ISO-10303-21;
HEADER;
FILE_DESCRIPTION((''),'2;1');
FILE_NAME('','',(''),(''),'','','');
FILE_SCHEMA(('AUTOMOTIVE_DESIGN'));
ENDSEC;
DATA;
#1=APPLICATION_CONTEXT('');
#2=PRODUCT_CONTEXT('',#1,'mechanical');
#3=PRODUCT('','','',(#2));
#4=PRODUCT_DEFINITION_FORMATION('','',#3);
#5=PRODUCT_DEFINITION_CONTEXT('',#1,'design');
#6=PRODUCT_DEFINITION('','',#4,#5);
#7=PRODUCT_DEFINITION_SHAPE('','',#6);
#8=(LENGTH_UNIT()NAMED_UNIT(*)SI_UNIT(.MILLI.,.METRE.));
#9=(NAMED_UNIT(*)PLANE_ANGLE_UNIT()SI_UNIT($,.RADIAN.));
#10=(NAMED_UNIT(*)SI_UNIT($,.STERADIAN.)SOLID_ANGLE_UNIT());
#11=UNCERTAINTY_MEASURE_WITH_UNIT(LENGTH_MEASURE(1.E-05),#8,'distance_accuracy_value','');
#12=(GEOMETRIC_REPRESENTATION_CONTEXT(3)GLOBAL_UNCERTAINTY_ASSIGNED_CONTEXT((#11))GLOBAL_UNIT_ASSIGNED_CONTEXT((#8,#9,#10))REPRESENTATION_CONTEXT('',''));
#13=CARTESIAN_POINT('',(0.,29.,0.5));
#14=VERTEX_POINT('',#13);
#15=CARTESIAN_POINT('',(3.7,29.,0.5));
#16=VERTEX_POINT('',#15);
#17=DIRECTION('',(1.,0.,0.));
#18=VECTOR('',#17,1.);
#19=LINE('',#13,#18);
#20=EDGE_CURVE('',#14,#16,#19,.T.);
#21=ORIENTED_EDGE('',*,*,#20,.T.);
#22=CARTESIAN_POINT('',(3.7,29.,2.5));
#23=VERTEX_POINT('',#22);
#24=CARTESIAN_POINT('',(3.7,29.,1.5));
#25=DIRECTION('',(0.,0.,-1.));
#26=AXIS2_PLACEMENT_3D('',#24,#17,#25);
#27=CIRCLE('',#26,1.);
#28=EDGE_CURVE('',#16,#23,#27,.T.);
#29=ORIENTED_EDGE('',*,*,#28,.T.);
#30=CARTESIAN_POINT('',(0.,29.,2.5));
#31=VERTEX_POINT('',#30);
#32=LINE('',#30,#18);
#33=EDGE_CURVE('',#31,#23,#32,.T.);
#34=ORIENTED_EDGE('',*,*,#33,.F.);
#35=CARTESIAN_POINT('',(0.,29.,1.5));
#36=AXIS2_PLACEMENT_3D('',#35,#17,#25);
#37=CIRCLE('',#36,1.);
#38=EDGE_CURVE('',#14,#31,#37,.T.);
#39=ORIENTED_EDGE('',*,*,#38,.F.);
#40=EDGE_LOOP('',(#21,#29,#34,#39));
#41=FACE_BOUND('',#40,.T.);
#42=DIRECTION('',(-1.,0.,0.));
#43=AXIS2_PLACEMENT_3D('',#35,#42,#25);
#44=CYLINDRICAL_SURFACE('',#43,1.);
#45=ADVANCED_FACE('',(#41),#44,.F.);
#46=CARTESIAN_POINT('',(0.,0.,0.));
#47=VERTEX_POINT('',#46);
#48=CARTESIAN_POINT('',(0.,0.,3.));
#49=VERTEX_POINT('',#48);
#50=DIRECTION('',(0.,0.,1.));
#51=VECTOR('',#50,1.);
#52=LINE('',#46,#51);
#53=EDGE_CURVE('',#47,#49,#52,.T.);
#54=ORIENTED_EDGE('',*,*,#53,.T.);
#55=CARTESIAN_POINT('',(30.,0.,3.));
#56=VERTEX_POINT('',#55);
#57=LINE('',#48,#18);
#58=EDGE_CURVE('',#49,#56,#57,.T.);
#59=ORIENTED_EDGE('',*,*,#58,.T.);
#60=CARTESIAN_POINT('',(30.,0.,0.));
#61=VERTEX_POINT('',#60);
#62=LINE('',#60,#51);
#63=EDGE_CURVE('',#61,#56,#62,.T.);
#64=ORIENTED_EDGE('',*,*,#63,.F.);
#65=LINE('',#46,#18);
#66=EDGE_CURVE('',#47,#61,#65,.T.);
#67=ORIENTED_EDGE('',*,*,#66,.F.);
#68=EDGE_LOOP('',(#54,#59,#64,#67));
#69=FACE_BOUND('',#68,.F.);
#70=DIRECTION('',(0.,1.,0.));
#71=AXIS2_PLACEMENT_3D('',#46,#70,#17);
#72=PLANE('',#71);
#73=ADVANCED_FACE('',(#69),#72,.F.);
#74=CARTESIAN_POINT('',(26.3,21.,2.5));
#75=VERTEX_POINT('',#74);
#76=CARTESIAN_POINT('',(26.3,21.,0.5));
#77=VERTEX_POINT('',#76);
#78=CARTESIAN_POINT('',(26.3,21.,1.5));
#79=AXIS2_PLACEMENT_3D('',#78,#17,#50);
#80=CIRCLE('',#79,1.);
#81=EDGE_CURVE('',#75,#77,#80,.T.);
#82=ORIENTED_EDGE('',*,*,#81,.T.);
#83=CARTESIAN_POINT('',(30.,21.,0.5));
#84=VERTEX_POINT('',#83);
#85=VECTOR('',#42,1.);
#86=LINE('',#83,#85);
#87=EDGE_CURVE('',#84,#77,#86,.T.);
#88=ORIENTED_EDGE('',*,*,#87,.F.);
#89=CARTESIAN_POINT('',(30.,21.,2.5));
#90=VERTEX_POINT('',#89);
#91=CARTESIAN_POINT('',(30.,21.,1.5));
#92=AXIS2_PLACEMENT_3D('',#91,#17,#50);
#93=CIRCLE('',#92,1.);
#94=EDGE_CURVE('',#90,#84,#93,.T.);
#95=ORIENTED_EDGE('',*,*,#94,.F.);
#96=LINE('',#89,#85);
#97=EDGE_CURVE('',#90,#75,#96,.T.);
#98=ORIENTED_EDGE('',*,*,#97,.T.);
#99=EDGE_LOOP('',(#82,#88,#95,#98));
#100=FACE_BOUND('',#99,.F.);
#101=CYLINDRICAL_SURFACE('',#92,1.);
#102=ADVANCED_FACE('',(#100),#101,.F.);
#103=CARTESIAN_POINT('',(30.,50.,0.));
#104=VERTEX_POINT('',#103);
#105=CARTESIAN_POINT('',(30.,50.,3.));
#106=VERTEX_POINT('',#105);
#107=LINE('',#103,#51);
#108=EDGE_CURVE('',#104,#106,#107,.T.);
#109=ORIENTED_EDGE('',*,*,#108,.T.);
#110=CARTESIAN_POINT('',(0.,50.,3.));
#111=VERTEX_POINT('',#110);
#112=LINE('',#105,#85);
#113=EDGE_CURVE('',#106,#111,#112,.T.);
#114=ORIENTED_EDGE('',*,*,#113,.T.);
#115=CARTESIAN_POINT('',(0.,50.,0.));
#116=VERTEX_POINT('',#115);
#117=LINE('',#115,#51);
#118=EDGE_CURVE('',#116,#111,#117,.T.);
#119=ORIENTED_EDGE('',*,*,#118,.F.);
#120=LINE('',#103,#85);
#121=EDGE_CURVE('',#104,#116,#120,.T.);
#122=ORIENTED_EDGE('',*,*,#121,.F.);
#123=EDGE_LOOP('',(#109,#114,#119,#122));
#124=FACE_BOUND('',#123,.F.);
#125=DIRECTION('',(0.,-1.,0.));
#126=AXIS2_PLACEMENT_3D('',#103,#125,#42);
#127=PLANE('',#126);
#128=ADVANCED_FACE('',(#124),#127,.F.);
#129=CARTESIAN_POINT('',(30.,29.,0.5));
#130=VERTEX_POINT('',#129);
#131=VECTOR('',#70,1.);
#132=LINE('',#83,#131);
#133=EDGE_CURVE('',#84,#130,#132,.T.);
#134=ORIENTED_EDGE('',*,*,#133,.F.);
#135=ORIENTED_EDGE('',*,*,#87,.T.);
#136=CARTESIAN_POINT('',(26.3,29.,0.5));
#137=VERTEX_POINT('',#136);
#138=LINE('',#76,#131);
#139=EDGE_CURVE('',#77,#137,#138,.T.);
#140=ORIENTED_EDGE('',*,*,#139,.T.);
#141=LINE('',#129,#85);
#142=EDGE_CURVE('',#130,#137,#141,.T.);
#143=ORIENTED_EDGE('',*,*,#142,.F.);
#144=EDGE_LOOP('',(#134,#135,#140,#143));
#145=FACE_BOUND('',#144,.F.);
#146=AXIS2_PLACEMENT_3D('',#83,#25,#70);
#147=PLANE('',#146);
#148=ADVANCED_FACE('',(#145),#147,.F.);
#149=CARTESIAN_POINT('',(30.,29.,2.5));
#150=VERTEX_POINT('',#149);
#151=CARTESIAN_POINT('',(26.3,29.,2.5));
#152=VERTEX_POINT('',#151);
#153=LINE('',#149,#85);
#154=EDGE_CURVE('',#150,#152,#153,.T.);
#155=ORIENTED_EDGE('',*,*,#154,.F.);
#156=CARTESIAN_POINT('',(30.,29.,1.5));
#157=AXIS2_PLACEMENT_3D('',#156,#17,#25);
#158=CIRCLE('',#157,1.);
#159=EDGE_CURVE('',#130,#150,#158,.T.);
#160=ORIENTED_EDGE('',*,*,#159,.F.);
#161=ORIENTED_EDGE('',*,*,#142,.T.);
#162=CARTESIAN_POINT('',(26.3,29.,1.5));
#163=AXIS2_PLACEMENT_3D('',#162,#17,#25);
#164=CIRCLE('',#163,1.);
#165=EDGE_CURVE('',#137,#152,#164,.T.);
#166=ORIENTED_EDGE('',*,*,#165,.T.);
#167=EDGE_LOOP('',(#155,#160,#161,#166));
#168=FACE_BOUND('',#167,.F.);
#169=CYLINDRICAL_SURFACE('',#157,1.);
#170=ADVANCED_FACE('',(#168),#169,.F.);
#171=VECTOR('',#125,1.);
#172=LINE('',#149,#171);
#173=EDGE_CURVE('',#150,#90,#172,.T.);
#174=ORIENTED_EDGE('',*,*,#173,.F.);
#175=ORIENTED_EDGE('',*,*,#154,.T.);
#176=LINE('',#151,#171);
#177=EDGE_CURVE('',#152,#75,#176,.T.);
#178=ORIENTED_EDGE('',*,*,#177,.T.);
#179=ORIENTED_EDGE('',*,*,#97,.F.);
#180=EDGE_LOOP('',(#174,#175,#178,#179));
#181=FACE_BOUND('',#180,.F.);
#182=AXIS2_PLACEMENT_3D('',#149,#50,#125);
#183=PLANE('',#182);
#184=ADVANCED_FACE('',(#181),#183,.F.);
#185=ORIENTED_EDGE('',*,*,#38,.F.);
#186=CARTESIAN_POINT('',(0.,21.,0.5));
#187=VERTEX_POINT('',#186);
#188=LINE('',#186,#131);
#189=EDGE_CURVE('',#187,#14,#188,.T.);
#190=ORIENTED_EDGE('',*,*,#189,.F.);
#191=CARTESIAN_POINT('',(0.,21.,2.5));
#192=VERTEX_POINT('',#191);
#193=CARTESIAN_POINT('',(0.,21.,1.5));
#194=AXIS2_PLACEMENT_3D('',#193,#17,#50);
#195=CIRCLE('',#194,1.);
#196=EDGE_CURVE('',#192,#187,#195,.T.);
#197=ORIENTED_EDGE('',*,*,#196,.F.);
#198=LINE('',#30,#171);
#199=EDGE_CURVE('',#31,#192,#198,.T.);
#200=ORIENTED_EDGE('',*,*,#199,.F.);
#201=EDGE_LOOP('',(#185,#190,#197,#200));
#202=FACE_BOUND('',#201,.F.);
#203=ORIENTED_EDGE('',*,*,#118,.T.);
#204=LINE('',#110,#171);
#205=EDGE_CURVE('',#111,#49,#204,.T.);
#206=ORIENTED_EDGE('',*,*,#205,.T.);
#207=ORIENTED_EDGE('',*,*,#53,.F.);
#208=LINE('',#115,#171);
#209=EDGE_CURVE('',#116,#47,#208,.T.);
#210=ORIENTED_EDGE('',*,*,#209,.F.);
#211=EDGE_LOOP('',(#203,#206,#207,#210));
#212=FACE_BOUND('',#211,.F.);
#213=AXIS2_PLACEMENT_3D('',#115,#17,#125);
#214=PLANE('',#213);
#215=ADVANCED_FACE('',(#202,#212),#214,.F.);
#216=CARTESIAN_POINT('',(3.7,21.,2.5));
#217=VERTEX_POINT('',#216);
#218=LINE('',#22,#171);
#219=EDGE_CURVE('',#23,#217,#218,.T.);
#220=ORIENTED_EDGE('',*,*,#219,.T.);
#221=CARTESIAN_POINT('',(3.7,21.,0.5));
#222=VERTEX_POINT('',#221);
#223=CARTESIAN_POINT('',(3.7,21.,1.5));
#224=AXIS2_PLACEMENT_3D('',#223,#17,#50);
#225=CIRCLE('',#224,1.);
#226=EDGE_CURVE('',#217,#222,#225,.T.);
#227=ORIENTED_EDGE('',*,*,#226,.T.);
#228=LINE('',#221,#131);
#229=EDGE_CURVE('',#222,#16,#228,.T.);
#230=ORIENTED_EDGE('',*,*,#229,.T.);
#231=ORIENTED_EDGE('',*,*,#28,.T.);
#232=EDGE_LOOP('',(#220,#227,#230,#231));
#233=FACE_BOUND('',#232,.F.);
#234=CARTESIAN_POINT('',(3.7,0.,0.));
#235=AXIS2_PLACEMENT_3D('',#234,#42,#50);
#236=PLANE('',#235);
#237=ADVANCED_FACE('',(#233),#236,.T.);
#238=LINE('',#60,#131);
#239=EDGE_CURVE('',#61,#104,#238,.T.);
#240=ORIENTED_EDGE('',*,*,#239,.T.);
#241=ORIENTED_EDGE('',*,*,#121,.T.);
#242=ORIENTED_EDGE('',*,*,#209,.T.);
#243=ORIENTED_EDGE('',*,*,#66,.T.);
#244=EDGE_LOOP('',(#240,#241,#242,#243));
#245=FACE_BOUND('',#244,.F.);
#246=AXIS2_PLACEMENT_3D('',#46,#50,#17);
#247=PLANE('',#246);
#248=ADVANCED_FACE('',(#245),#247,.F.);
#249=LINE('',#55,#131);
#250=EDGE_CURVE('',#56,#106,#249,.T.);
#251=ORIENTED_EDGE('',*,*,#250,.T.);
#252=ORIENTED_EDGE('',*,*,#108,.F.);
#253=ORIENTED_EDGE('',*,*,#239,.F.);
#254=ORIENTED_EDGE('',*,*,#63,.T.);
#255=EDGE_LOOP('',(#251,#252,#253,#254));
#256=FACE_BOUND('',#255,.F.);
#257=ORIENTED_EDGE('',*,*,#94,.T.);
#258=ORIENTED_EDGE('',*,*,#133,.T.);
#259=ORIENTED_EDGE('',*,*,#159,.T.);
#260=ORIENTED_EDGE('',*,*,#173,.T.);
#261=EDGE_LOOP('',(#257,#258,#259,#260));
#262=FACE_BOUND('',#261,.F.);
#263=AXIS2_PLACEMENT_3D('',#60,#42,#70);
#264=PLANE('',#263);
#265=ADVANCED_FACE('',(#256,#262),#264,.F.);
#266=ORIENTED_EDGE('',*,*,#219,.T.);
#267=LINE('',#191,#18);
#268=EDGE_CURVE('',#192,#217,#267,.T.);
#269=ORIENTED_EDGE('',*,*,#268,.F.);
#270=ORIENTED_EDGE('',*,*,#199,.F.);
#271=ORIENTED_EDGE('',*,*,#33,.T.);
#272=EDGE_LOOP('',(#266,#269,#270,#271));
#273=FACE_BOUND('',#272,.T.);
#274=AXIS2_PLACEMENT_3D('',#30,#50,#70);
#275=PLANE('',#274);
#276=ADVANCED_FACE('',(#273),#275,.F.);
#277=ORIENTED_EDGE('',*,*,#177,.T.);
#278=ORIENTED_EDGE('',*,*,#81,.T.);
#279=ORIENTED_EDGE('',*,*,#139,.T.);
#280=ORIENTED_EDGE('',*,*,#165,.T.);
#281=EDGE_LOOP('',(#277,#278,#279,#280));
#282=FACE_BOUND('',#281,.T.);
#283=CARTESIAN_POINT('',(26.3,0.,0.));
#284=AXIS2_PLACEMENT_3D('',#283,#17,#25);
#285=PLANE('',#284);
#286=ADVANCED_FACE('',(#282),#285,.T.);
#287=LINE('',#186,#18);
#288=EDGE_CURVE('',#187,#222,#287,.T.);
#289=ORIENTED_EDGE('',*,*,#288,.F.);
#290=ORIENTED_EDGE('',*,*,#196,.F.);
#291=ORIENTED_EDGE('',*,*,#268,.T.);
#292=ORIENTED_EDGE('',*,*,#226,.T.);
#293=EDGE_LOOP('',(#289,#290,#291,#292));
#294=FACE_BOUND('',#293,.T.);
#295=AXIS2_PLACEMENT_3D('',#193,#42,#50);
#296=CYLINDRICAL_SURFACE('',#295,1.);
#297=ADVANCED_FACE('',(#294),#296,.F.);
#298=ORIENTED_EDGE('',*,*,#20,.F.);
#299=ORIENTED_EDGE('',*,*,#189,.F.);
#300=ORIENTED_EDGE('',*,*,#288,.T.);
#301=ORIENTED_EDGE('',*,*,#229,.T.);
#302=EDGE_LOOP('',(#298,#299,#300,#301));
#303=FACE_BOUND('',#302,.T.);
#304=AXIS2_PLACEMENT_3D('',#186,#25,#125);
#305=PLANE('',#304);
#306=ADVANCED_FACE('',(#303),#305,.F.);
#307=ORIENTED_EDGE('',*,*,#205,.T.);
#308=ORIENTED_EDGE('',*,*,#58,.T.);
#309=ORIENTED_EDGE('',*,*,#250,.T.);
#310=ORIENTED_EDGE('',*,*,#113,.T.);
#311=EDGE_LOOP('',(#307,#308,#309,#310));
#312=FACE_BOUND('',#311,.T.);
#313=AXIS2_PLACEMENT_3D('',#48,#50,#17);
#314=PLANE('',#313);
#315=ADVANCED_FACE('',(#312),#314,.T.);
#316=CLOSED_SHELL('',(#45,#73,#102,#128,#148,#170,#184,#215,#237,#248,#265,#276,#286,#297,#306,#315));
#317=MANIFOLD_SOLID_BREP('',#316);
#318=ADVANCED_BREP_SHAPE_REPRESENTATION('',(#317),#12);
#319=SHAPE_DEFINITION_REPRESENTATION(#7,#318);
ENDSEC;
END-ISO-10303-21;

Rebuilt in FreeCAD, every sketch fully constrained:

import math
import FreeCAD as App
import Part
import Sketcher
from FreeCAD import Vector
Q = App.Units.Quantity

doc = App.newDocument("Part")
params = doc.addObject("Spreadsheet::Sheet", "Params")
for row, (alias, value) in enumerate([
    ("sketch1_width", "30 mm"),
    ("sketch1_height", "50 mm"),
    ("pad1_length", "3 mm"),
    ("sketch2_radius", "1 mm"),
    ("sketch2_width", "8 mm"),
    ("pocket1_length", "3.7 mm"),
], start=1):
    params.set(f"A{row}", alias)
    params.set(f"B{row}", "=" + value)
    params.setAlias(f"B{row}", alias)

body = doc.addObject("PartDesign::Body", "Body")

sketch1 = body.newObject("Sketcher::SketchObject", "Sketch")
sketch1.AttachmentSupport = (doc.getObject("XY_Plane"), [""])
sketch1.MapMode = "FlatFace"
sketch1.addGeometry([
    Part.LineSegment(Vector(0, 50, 0), Vector(0, 0, 0)),
    Part.LineSegment(Vector(0, 0, 0), Vector(30, 0, 0)),
    Part.LineSegment(Vector(30, 0, 0), Vector(30, 50, 0)),
    Part.LineSegment(Vector(30, 50, 0), Vector(0, 50, 0)),
], False)
sketch1.addConstraint([
    Sketcher.Constraint("Coincident", 0, 2, 1, 1),
    Sketcher.Constraint("Coincident", 1, 2, 2, 1),
    Sketcher.Constraint("Coincident", 2, 2, 3, 1),
    Sketcher.Constraint("Coincident", 3, 2, 0, 1),
    Sketcher.Constraint("Vertical", 0),
    Sketcher.Constraint("Horizontal", 1),
    Sketcher.Constraint("Vertical", 2),
    Sketcher.Constraint("Horizontal", 3),
    Sketcher.Constraint("Coincident", 0, 2, -1, 1),
    Sketcher.Constraint("DistanceX", 1, 1, 1, 2, Q("30 mm")),
    Sketcher.Constraint("DistanceY", 0, 2, 0, 1, Q("50 mm")),
])
sketch1.setExpression("Constraints[9]", "Params.sketch1_width")
sketch1.setExpression("Constraints[10]", "Params.sketch1_height")
pad1 = body.newObject("PartDesign::Pad", "Pad")
pad1.Profile = sketch1
pad1.setExpression("Length", "Params.pad1_length")

sketch2 = body.newObject("Sketcher::SketchObject", "Sketch001")
sketch2.AttachmentSupport = (doc.getObject("YZ_Plane"), [""])
sketch2.MapMode = "FlatFace"
sketch2.AttachmentOffset = App.Placement(Vector(0, 0, 30), App.Rotation())
sketch2.addGeometry([
    Part.ArcOfCircle(Part.Circle(Vector(29, 1.5, 0), Vector(0, 0, 1), 1), math.radians(-90), math.radians(90)),
    Part.LineSegment(Vector(29, 2.5, 0), Vector(21, 2.5, 0)),
    Part.ArcOfCircle(Part.Circle(Vector(21, 1.5, 0), Vector(0, 0, 1), 1), math.radians(90), math.radians(270)),
    Part.LineSegment(Vector(21, 0.5, 0), Vector(29, 0.5, 0)),
], False)
sketch2.addConstraint([
    Sketcher.Constraint("Tangent", 0, 2, 1, 1),
    Sketcher.Constraint("Tangent", 1, 2, 2, 1),
    Sketcher.Constraint("Tangent", 2, 2, 3, 1),
    Sketcher.Constraint("Tangent", 3, 2, 0, 1),
    Sketcher.Constraint("Horizontal", 1),
    Sketcher.Constraint("Horizontal", 3),
    Sketcher.Constraint("Radius", 0, Q("1 mm")),
    Sketcher.Constraint("DistanceY", -1, 1, 0, 3, Q("1.5 mm")),
    Sketcher.Constraint("DistanceX", 1, 2, 1, 1, Q("8 mm")),
    Sketcher.Constraint("DistanceX", -1, 1, 0, 3, Q("29 mm")),
])
sketch2.setExpression("Constraints[6]", "Params.sketch2_radius")
sketch2.setExpression("Constraints[8]", "Params.sketch2_width")
pocket1 = body.newObject("PartDesign::Pocket", "Pocket")
pocket1.Profile = sketch2
pocket1.setExpression("Length", "Params.pocket1_length")
doc.recompute()

datumplane = body.newObject("PartDesign::Plane", "DatumPlane")
datumplane.AttachmentSupport = (doc.getObject("YZ_Plane"), [""])
datumplane.MapMode = "FlatFace"
datumplane.AttachmentOffset = App.Placement(Vector(0, 0, 15), App.Rotation())
mirrored = body.newObject("PartDesign::Mirrored", "Mirrored")
mirrored.Originals = [pocket1]
mirrored.MirrorPlane = (datumplane, [""])
body.Tip = mirrored

doc.recompute()
